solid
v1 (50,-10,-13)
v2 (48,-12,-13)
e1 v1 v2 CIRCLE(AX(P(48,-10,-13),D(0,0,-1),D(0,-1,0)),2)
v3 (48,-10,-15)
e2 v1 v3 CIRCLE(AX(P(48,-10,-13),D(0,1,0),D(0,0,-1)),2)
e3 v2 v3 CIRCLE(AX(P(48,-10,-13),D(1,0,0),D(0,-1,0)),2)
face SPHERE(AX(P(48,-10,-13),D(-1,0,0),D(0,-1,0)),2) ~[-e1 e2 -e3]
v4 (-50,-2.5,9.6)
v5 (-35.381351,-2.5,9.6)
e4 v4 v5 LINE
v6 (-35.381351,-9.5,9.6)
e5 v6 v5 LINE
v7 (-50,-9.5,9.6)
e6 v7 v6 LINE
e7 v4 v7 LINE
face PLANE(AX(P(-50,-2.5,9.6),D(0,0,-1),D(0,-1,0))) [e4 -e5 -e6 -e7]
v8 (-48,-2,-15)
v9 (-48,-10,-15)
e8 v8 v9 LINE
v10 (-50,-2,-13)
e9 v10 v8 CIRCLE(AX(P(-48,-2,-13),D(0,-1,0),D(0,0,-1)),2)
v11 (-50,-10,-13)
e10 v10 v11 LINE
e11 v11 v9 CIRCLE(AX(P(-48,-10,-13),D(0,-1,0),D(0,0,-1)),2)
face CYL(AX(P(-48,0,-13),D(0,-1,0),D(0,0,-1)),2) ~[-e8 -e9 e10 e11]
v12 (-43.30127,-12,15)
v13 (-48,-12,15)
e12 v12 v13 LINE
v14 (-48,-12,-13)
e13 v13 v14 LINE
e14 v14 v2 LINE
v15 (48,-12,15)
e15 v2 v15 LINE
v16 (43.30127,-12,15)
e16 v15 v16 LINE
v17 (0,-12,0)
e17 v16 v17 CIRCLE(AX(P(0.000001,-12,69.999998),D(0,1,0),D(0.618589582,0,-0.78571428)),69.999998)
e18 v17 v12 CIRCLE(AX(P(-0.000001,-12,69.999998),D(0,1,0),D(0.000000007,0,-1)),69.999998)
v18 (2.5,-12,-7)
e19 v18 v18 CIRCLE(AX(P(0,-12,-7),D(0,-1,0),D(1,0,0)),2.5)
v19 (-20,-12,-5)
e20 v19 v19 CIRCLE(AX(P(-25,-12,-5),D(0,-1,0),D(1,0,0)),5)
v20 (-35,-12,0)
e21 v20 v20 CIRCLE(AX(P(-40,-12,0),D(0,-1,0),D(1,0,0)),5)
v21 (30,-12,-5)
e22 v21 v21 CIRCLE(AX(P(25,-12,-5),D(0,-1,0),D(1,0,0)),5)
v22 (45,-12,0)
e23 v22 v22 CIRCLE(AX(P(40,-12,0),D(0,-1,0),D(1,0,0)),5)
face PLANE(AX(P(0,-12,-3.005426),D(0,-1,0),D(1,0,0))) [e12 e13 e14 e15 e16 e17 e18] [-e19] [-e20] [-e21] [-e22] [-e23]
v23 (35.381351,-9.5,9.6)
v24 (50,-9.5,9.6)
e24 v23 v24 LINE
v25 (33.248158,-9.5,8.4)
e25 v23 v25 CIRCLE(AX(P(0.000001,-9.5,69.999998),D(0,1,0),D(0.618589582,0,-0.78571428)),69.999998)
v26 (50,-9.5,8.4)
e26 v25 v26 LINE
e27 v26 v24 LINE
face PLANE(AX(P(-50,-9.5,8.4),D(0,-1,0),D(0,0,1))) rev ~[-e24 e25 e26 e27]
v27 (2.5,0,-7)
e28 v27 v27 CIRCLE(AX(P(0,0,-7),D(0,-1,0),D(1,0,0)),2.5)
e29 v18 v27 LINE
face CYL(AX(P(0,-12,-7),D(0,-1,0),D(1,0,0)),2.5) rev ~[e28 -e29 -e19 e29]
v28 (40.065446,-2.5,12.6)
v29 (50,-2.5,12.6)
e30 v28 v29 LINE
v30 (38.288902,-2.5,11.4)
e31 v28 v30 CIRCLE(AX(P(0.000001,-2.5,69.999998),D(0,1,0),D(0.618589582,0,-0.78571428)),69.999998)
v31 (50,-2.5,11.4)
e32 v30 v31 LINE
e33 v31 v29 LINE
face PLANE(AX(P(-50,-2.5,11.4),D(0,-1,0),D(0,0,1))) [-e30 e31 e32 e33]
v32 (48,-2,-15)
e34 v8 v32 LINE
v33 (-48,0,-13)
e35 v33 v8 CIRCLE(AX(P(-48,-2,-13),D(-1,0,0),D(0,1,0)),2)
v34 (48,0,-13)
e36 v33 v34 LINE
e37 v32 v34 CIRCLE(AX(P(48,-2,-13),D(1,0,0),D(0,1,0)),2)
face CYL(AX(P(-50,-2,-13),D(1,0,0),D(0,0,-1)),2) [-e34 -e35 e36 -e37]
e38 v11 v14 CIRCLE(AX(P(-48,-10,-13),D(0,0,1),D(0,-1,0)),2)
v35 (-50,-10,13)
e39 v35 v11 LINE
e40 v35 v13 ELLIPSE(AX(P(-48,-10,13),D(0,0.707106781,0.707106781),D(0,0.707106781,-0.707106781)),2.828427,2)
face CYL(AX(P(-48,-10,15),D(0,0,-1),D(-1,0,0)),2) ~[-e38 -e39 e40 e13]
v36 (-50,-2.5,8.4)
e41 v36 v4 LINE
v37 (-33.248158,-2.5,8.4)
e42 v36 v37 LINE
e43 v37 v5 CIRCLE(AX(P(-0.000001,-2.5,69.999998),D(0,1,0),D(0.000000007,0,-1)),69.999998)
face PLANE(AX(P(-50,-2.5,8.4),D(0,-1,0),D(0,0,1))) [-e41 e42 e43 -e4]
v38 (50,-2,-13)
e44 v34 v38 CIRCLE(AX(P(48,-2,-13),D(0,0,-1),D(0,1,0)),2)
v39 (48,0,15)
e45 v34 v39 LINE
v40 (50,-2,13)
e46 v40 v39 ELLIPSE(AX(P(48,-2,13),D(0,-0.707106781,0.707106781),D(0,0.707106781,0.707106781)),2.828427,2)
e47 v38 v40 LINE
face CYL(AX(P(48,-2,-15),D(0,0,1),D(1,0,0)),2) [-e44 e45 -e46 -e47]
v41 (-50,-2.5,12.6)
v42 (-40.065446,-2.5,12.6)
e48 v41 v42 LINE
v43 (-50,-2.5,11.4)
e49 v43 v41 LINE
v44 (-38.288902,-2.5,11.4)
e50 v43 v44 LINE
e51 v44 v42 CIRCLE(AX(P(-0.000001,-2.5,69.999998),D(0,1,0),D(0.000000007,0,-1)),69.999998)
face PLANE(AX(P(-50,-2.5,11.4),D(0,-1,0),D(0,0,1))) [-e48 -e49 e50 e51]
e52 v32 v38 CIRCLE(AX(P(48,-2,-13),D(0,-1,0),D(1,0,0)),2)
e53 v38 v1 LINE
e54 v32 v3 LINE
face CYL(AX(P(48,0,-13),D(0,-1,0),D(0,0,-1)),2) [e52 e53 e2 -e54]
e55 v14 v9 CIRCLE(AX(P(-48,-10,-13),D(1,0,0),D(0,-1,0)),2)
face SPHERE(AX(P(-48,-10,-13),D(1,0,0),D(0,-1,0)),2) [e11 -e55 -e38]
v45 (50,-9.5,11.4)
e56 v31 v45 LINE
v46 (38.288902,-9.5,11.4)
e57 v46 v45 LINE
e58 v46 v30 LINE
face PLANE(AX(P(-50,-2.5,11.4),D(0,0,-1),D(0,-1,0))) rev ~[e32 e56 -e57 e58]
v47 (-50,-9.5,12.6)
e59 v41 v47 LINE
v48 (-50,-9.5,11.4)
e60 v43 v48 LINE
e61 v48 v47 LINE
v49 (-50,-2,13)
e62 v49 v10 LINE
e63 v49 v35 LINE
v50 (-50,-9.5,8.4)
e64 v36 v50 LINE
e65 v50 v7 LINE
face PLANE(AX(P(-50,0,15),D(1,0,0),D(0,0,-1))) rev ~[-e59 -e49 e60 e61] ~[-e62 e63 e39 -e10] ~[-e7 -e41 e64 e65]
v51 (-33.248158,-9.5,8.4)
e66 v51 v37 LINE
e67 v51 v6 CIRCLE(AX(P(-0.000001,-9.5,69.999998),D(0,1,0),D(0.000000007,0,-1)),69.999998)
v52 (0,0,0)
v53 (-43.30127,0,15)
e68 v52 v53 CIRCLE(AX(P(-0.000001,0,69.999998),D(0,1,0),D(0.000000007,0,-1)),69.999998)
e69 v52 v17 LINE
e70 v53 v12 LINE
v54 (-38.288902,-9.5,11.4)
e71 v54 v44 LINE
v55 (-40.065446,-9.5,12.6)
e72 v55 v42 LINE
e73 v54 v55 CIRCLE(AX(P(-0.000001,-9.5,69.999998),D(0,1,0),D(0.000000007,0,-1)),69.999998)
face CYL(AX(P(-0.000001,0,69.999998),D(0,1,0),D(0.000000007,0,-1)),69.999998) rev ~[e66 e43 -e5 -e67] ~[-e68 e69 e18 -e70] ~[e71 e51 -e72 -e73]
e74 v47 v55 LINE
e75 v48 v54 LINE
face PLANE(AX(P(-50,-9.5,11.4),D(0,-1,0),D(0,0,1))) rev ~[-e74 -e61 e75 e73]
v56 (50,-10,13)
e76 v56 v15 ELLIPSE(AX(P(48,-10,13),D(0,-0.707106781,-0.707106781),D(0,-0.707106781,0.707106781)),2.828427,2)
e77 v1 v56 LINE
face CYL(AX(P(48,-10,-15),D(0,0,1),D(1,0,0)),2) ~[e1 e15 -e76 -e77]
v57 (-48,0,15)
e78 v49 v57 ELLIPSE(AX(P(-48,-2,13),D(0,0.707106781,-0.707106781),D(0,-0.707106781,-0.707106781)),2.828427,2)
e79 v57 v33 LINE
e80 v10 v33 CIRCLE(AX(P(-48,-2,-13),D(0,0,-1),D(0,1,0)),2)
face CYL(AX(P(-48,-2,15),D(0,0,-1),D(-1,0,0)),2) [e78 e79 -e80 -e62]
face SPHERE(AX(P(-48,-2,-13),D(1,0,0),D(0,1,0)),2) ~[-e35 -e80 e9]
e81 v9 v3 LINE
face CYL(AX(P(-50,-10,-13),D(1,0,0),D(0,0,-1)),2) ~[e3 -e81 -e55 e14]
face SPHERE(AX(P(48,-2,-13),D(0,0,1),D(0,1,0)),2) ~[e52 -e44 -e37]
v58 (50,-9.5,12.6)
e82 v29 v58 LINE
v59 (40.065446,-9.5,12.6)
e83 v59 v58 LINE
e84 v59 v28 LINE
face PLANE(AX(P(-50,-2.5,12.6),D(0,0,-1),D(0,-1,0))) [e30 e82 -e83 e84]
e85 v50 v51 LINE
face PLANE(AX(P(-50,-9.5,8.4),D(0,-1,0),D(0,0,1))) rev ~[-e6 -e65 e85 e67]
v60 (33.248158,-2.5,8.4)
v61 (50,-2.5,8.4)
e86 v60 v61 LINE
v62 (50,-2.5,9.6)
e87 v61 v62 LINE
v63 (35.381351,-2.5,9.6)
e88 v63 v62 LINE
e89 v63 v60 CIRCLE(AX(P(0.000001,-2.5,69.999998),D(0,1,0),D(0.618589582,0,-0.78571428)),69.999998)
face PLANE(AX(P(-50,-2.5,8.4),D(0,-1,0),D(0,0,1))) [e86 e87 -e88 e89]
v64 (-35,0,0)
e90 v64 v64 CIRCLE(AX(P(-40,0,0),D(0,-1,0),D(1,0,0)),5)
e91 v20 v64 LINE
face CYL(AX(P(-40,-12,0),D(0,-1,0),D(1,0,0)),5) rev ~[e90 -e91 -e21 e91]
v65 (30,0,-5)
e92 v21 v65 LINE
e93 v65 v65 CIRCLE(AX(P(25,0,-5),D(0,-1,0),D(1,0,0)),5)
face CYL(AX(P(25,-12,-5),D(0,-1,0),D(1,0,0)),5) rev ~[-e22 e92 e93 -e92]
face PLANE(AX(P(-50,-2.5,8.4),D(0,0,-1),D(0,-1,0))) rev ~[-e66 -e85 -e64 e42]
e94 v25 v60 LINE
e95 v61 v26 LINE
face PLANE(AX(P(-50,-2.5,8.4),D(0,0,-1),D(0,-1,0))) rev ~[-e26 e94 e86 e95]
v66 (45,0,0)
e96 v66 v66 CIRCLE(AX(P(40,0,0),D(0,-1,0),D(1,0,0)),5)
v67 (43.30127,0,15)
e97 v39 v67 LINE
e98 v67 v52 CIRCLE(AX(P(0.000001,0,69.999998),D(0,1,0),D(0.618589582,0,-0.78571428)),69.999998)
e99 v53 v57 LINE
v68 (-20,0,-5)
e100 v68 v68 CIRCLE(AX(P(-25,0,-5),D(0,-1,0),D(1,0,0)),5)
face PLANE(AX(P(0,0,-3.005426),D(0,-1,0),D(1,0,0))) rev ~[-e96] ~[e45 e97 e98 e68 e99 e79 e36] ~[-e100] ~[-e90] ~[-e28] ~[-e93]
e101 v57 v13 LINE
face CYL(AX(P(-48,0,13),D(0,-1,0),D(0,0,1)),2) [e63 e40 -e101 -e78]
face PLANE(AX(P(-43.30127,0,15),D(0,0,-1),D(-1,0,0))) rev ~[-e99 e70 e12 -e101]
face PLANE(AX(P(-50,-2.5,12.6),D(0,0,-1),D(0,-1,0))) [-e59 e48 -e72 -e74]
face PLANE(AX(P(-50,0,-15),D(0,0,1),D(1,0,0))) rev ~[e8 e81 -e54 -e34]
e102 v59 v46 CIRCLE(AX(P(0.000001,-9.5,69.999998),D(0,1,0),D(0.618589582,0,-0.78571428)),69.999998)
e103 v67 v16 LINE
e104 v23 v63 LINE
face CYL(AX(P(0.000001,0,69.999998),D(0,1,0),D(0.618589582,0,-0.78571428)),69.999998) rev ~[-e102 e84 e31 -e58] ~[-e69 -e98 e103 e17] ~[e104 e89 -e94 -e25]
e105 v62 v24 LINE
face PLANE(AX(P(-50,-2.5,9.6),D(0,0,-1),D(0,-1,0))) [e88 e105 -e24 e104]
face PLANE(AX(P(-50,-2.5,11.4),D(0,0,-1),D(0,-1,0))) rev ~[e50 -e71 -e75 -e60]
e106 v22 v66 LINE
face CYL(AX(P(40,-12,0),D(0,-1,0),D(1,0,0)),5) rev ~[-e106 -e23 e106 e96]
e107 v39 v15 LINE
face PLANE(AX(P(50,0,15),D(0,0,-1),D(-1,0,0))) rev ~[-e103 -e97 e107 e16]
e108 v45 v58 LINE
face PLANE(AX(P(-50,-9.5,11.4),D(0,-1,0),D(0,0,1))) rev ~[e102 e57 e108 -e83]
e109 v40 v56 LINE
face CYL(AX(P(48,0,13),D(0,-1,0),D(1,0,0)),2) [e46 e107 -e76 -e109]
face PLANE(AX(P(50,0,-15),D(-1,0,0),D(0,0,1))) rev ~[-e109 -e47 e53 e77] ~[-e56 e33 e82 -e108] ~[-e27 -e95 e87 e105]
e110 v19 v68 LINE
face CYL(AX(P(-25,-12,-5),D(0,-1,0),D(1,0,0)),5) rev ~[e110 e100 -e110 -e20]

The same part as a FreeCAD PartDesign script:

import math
import FreeCAD as App
import Part
import Sketcher

V = App.Vector


def edges_at(feature, points):
    """Names of the edges that pass closest to the given points."""
    edges = feature.Shape.Edges
    near = lambda p: min(range(len(edges)), key=lambda i: edges[i].distToShape(Part.Vertex(*p))[0])
    return sorted({f"Edge{near(p) + 1}" for p in points})


def add_polygon(sketch, points):
    """Adds a closed chain of lines whose ends are joined by coincident constraints."""
    first, n = sketch.GeometryCount, len(points)
    for a, b in zip(points, points[1:] + points[:1]):
        sketch.addGeometry(Part.LineSegment(App.Vector(*a, 0), App.Vector(*b, 0)), False)
    for i in range(n):
        sketch.addConstraint(Sketcher.Constraint("Coincident", first + i, 2, first + (i + 1) % n, 1))

doc = App.newDocument("Part")
params = doc.addObject("Spreadsheet::Sheet", "Params")
for row, (alias, value) in enumerate([
    ("sketch1_width", "100 mm"),
    ("sketch1_height", "30 mm"),
    ("pad1_length", "12 mm"),
    ("fillet_radius", "2 mm"),
    ("sketch2_diameter", "10 mm"),
    ("sketch2_diameter2", "5 mm"),
    ("sketch3_width", "7 mm"),
    ("sketch3_height", "1.2 mm"),
], start=1):
    params.set(f"A{row}", alias)
    params.set(f"B{row}", "=" + value)
    params.setAlias(f"B{row}", alias)

body = doc.addObject("PartDesign::Body", "Body")

# Sketch on XZ plane
sketch1 = body.newObject("Sketcher::SketchObject", "Sketch")
sketch1.AttachmentSupport = (doc.getObject("XZ_Plane"), [""])
sketch1.MapMode = "FlatFace"
sketch1.addGeometry([
    Part.LineSegment(V(-50, -15, 0), V(50, -15, 0)),  # 0
    Part.LineSegment(V(50, -15, 0), V(50, 15, 0)),  # 1
    Part.LineSegment(V(50, 15, 0), V(43, 15, 0)),  # 2
    Part.ArcOfCircle(Part.Circle(V(0, 70, 0), V(0, 0, 1), 70), math.radians(-90), math.radians(-52)),  # 3
    Part.ArcOfCircle(Part.Circle(V(0, 70, 0), V(0, 0, 1), 70), math.radians(-128), math.radians(-90)),  # 4
    Part.LineSegment(V(-43, 15, 0), V(-50, 15, 0)),  # 5
    Part.LineSegment(V(-50, 15, 0), V(-50, -15, 0)),  # 6
], False)
sketch1.addConstraint([
    Sketcher.Constraint("Coincident", 0, 2, 1, 1),
    Sketcher.Constraint("Coincident", 1, 2, 2, 1),
    Sketcher.Constraint("Coincident", 2, 2, 3, 2),
    Sketcher.Constraint("Tangent", 3, 1, 4, 2),
    Sketcher.Constraint("Coincident", 4, 1, 5, 1),
    Sketcher.Constraint("Coincident", 5, 2, 6, 1),
    Sketcher.Constraint("Coincident", 6, 2, 0, 1),
    Sketcher.Constraint("Horizontal", 0),
    Sketcher.Constraint("Vertical", 1),
    Sketcher.Constraint("Horizontal", 2),
    Sketcher.Constraint("Horizontal", 5),
    Sketcher.Constraint("Vertical", 6),
    Sketcher.Constraint("Coincident", 3, 1, -1, 1),
    Sketcher.Constraint("Equal", 3, 4),
    Sketcher.Constraint("Symmetric", 0, 2, 5, 2, -1, 1),
    Sketcher.Constraint("Symmetric", 2, 2, 4, 1, -2),
    Sketcher.Constraint("DistanceX", 0, 1, 0, 2, 100.0),
    Sketcher.Constraint("DistanceY", 1, 1, 1, 2, 30.0),
    Sketcher.Constraint("Radius", 3, 69.999998),
])
sketch1.setExpression("Constraints[16]", "Params.sketch1_width")
sketch1.setExpression("Constraints[17]", "Params.sketch1_height")
pad1 = body.newObject("PartDesign::Pad", "Pad")
pad1.Profile = sketch1
pad1.setExpression("Length", "Params.pad1_length")
doc.recompute()

fillet = body.newObject("PartDesign::Fillet", "Fillet")
fillet.Base = (pad1, edges_at(pad1, [
    (0, -12, -15),
    (-50, -12, 0),
    (50, -12, 0),
    (50, 0, 0),
    (0, 0, -15),
    (-50, 0, 0),
    (-50, -6, -15),
    (50, -6, -15),
    (50, -6, 15),
    (-50, -6, 15),
]))
fillet.setExpression("Radius", "Params.fillet_radius")

# Sketch on XZ plane
sketch2 = body.newObject("Sketcher::SketchObject", "Sketch001")
sketch2.AttachmentSupport = (doc.getObject("XZ_Plane"), [""])
sketch2.MapMode = "FlatFace"
sketch2.AttachmentOffset = App.Placement(V(0, 0, 12), App.Rotation())
sketch2.addGeometry([
    Part.Circle(V(-25, -5, 0), V(0, 0, 1), 5),  # 0
    Part.Circle(V(-40, 0, 0), V(0, 0, 1), 5),  # 1
    Part.Circle(V(0, -7, 0), V(0, 0, 1), 2.5),  # 2
    Part.Circle(V(25, -5, 0), V(0, 0, 1), 5),  # 3
    Part.Circle(V(40, 0, 0), V(0, 0, 1), 5),  # 4
], False)
sketch2.addConstraint([
    Sketcher.Constraint("Equal", 0, 1),
    Sketcher.Constraint("Equal", 1, 3),
    Sketcher.Constraint("Equal", 3, 4),
    Sketcher.Constraint("Symmetric", 1, 3, 4, 3, -1, 1),
    Sketcher.Constraint("Symmetric", 0, 3, 3, 3, -2),
    Sketcher.Constraint("PointOnObject", 1, 3, -1),
    Sketcher.Constraint("PointOnObject", 2, 3, -2),
    Sketcher.Constraint("Diameter", 0, 10.0),
    Sketcher.Constraint("Diameter", 2, 5.0),
    Sketcher.Constraint("DistanceX", 0, 3, -1, 1, 25.0),
    Sketcher.Constraint("DistanceY", 0, 3, -1, 1, 5.0),
    Sketcher.Constraint("DistanceX", 1, 3, -1, 1, 40.0),
    Sketcher.Constraint("DistanceY", 2, 3, -1, 1, 7.0),
])
sketch2.setExpression("Constraints[7]", "Params.sketch2_diameter")
sketch2.setExpression("Constraints[8]", "Params.sketch2_diameter2")
pocket1 = body.newObject("PartDesign::Pocket", "Pocket")
pocket1.Profile = sketch2
pocket1.Type = "ThroughAll"

# Sketch on YZ plane
sketch3 = body.newObject("Sketcher::SketchObject", "Sketch002")
sketch3.AttachmentSupport = (doc.getObject("YZ_Plane"), [""])
sketch3.MapMode = "FlatFace"
sketch3.AttachmentOffset = App.Placement(V(0, 0, -50), App.Rotation())
add_polygon(sketch3, [(-2.5, 12.6), (-2.5, 11.4), (-9.5, 11.4), (-9.5, 12.6)])  # lines 0-3
add_polygon(sketch3, [(-2.5, 9.6), (-2.5, 8.4), (-9.5, 8.4), (-9.5, 9.6)])  # lines 4-7
sketch3.addConstraint([
    Sketcher.Constraint("Vertical", 0),
    Sketcher.Constraint("Horizontal", 1),
    Sketcher.Constraint("Vertical", 2),
    Sketcher.Constraint("Horizontal", 3),
    Sketcher.Constraint("Vertical", 4),
    Sketcher.Constraint("Horizontal", 5),
    Sketcher.Constraint("Vertical", 6),
    Sketcher.Constraint("Horizontal", 7),
    Sketcher.Constraint("Vertical", 3, 2, 4, 2),
    Sketcher.Constraint("Vertical", 2, 2, 5, 2),
    Sketcher.Constraint("Equal", 2, 4),
    Sketcher.Constraint("DistanceX", 1, 2, 1, 1, 7.0),
    Sketcher.Constraint("DistanceY", 0, 2, 0, 1, 1.2),
    Sketcher.Constraint("DistanceY", 4, 2, 0, 2, 3.0),
    Sketcher.Constraint("DistanceX", 0, 2, -1, 1, 2.5),
    Sketcher.Constraint("DistanceY", -1, 1, 0, 2, 11.4),
])
sketch3.setExpression("Constraints[19]", "Params.sketch3_width")
sketch3.setExpression("Constraints[20]", "Params.sketch3_height")
pocket2 = body.newObject("PartDesign::Pocket", "Pocket001")
pocket2.Profile = sketch3
pocket2.Type = "ThroughAll"
pocket2.Reversed = True

doc.recompute()
